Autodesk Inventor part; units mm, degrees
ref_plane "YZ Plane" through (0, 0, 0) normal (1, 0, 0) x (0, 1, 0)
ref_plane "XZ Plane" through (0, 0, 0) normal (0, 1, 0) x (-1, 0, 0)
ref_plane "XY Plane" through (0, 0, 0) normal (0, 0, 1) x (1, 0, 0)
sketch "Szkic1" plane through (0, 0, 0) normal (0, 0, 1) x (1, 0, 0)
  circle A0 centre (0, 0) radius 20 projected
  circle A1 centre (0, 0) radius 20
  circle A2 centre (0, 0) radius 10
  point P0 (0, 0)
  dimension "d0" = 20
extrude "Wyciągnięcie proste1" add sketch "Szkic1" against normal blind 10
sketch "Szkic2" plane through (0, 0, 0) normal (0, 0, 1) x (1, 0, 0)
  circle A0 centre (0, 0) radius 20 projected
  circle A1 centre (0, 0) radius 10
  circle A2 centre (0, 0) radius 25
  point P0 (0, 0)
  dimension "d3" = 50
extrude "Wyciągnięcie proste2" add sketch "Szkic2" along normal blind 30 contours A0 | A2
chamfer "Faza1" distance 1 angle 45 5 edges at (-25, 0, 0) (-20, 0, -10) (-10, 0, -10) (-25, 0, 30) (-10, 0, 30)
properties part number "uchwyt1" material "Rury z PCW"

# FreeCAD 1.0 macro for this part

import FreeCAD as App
import Part
import Sketcher

V = App.Vector


def edges_at(feature, points):
    """Names of the edges that pass closest to the given points."""
    edges = feature.Shape.Edges
    near = lambda p: min(range(len(edges)), key=lambda i: edges[i].distToShape(Part.Vertex(*p))[0])
    return sorted({f"Edge{near(p) + 1}" for p in points})

doc = App.newDocument("Part")
body = doc.addObject("PartDesign::Body", "Body")

sketch1 = doc.addObject("Sketcher::SketchObject", "Sketch")
body.addObject(sketch1)
sketch1.AttachmentSupport = (doc.XY_Plane, [""])
sketch1.MapMode = "FlatFace"
sketch1.addGeometry([
    Part.Circle(V(0, 0, 0), V(0, 0, 1), 20),
    Part.Circle(V(0, 0, 0), V(0, 0, 1), 10),
], False)
sketch1.addConstraint([
    Sketcher.Constraint("Coincident", 0, 3, -1, 1),
    Sketcher.Constraint("Coincident", 1, 3, -1, 1),
    Sketcher.Constraint("Diameter", 0, 40.0),
    Sketcher.Constraint("Diameter", 1, 20.0),
])
pad1 = doc.addObject("PartDesign::Pad", "Pad")
body.addObject(pad1)
pad1.Profile = sketch1
pad1.Length = 10
pad1.Reversed = True

sketch2 = doc.addObject("Sketcher::SketchObject", "Sketch001")
body.addObject(sketch2)
sketch2.AttachmentSupport = (doc.XY_Plane, [""])
sketch2.MapMode = "FlatFace"
sketch2.addGeometry([
    Part.Circle(V(0, 0, 0), V(0, 0, 1), 25),
    Part.Circle(V(0, 0, 0), V(0, 0, 1), 10),
], False)
sketch2.addConstraint([
    Sketcher.Constraint("Coincident", 0, 3, -1, 1),
    Sketcher.Constraint("Coincident", 1, 3, -1, 1),
    Sketcher.Constraint("Diameter", 0, 50.0),
    Sketcher.Constraint("Diameter", 1, 20.0),
])
pad2 = doc.addObject("PartDesign::Pad", "Pad001")
body.addObject(pad2)
pad2.Profile = sketch2
pad2.Length = 30
doc.recompute()

chamfer = doc.addObject("PartDesign::Chamfer", "Chamfer")
body.addObject(chamfer)
chamfer.Base = (pad2, edges_at(pad2, [
    (-25, 0, 0),
    (-20, 0, -10),
    (-10, 0, -10),
    (-25, 0, 30),
    (-10, 0, 30),
]))
chamfer.Size = 1

doc.recompute()
